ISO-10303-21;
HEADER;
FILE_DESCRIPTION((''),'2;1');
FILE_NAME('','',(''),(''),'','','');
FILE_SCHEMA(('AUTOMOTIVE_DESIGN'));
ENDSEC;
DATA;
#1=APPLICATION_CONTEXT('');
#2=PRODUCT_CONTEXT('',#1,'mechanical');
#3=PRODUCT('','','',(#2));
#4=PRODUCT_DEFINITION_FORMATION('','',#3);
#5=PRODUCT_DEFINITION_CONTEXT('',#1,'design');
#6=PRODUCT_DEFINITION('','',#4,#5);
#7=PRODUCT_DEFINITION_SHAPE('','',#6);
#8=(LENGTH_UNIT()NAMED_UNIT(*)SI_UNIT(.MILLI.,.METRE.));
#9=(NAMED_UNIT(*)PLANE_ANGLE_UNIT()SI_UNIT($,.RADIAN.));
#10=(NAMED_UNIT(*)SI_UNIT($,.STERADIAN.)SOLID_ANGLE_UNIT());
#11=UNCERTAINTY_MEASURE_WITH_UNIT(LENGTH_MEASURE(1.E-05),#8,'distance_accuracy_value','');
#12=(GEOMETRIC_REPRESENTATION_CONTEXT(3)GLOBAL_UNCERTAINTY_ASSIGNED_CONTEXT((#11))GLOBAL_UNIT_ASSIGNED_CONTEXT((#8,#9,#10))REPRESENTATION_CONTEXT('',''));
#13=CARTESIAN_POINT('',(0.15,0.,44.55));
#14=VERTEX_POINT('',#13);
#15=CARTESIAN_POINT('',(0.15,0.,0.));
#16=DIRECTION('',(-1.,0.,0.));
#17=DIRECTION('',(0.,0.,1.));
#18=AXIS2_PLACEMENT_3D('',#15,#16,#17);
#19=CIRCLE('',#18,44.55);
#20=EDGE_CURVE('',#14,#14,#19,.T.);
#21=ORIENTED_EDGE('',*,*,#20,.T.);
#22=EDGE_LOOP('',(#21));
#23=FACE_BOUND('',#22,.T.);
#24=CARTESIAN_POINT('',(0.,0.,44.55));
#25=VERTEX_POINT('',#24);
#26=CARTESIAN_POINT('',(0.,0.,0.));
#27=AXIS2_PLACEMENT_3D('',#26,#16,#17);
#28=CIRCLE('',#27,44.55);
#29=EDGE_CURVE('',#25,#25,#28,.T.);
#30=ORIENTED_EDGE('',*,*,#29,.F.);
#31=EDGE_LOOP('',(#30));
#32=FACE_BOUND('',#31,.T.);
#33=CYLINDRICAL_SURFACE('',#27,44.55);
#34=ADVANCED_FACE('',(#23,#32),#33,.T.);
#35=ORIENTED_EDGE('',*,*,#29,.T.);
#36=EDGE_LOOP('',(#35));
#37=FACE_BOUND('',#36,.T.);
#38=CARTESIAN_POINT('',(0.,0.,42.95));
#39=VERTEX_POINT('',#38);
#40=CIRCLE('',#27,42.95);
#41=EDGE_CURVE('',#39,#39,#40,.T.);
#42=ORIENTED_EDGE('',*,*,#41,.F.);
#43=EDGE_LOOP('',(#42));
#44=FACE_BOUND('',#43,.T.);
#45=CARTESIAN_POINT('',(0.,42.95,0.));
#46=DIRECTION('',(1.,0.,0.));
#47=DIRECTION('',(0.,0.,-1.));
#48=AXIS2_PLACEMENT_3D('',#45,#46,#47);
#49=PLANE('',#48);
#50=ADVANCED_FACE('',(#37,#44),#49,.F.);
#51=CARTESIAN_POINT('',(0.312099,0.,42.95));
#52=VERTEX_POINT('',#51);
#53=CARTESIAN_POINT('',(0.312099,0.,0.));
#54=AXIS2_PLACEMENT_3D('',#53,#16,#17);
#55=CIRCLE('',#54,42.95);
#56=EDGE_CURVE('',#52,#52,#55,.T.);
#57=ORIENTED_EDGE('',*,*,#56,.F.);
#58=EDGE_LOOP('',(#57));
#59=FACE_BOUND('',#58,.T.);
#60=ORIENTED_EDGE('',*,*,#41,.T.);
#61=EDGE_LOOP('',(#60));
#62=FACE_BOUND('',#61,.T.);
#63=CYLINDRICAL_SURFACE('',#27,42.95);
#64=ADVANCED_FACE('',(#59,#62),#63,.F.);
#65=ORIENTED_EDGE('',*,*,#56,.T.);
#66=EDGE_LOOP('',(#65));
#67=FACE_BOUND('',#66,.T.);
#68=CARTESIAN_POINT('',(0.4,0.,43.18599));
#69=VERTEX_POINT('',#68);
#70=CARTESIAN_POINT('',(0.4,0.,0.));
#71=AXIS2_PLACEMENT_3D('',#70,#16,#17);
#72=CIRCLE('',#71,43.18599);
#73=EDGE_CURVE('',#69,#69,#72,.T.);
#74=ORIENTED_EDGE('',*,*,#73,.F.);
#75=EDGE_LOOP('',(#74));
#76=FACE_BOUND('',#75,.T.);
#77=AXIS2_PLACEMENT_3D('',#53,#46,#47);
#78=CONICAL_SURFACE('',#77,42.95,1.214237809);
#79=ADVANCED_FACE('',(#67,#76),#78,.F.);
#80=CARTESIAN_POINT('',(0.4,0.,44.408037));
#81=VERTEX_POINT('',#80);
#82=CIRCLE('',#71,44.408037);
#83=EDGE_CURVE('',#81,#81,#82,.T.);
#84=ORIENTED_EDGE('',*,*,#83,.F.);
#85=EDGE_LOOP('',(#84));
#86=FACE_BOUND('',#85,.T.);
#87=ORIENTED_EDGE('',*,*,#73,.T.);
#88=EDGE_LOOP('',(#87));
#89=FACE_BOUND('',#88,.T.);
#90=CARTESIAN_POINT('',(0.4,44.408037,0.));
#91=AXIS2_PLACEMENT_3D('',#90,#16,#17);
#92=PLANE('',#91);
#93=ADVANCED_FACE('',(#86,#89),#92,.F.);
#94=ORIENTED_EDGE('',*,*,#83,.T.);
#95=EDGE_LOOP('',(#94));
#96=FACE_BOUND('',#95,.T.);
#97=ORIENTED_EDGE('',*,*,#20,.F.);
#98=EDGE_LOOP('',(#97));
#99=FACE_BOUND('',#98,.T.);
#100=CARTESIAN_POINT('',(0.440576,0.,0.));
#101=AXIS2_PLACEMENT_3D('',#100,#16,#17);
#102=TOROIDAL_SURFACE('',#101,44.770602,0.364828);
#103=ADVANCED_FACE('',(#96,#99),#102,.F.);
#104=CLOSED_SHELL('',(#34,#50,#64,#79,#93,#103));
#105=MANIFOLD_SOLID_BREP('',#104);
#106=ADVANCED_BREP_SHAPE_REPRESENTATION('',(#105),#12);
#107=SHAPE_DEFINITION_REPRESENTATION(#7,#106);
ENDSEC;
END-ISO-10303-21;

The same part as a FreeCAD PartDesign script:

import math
import FreeCAD as App
import Part
import Sketcher
from FreeCAD import Vector

doc = App.newDocument("Part")
body = doc.addObject("PartDesign::Body", "Body")

sketch1 = body.newObject("Sketcher::SketchObject", "Sketch")
sketch1.AttachmentSupport = (doc.getObject("XY_Plane"), [""])
sketch1.MapMode = "FlatFace"
sketch1.addGeometry([
    Part.LineSegment(Vector(0.15, 44.55, 0), Vector(0, 44.55, 0)),
    Part.LineSegment(Vector(0, 44.55, 0), Vector(0, 42.95, 0)),
    Part.LineSegment(Vector(0, 42.95, 0), Vector(0.31, 42.95, 0)),
    Part.LineSegment(Vector(0.31, 42.95, 0), Vector(0.4, 43.19, 0)),
    Part.LineSegment(Vector(0.4, 43.19, 0), Vector(0.4, 44.41, 0)),
    Part.ArcOfCircle(Part.Circle(Vector(0.44, 44.77, 0), Vector(0, 0, 1), 0.36), math.radians(-143), math.radians(-96)),
], False)
sketch1.addConstraint([
    Sketcher.Constraint("Coincident", 0, 2, 1, 1),
    Sketcher.Constraint("Coincident", 1, 2, 2, 1),
    Sketcher.Constraint("Coincident", 2, 2, 3, 1),
    Sketcher.Constraint("Coincident", 3, 2, 4, 1),
    Sketcher.Constraint("Coincident", 4, 2, 5, 2),
    Sketcher.Constraint("Coincident", 5, 1, 0, 1),
    Sketcher.Constraint("Horizontal", 0),
    Sketcher.Constraint("Vertical", 1),
    Sketcher.Constraint("Horizontal", 2),
    Sketcher.Constraint("Vertical", 4),
    Sketcher.Constraint("PointOnObject", 0, 2, -2),
    Sketcher.Constraint("DistanceY", 1, 2, 1, 1, 1.6),
    Sketcher.Constraint("DistanceX", 0, 2, 0, 1, 0.15),
    Sketcher.Constraint("DistanceX", -1, 1, 3, 2, 0.4),
    Sketcher.Constraint("DistanceY", -1, 1, 0, 2, 44.55),
    Sketcher.Constraint("DistanceX", 2, 1, 2, 2, 0.312099),
    Sketcher.Constraint("Radius", 5, 0.364828),
    Sketcher.Constraint("DistanceY", -1, 1, 5, 3, 44.770602),
    Sketcher.Constraint("Distance", 3, 0.251829),
])
revolution = body.newObject("PartDesign::Revolution", "Revolution")
revolution.Profile = sketch1
revolution.ReferenceAxis = (sketch1, ["H_Axis"])
revolution.Angle = 360

doc.recompute()
